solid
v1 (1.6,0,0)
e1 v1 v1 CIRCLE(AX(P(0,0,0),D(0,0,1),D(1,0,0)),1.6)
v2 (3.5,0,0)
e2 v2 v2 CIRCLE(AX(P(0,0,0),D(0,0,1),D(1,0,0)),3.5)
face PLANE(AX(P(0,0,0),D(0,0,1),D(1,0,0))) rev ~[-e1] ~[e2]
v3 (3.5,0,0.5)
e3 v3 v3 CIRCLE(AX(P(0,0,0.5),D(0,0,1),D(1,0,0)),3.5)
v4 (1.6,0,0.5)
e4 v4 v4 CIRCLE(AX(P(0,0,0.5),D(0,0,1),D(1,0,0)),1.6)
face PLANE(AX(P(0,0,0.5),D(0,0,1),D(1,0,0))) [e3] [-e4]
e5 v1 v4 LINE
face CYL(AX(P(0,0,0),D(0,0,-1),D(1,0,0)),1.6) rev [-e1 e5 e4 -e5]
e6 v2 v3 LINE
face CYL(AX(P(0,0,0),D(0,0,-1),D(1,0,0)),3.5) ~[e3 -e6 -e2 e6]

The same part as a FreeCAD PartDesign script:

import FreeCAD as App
import Part
import Sketcher
from FreeCAD import Vector
Q = App.Units.Quantity

doc = App.newDocument("Part")
params = doc.addObject("Spreadsheet::Sheet", "Params")
for row, (alias, value) in enumerate([
    ("sketch1_diameter", "7 mm"),
    ("sketch1_diameter2", "3.2 mm"),
    ("pad1_length", "0.5 mm"),
], start=1):
    params.set(f"A{row}", alias)
    params.set(f"B{row}", "=" + value)
    params.setAlias(f"B{row}", alias)

body = doc.addObject("PartDesign::Body", "Body")

sketch1 = body.newObject("Sketcher::SketchObject", "Sketch")
sketch1.AttachmentSupport = (doc.getObject("XY_Plane"), [""])
sketch1.MapMode = "FlatFace"
sketch1.addGeometry([
    Part.Circle(Vector(0, 0, 0), Vector(0, 0, 1), 3.5),
    Part.Circle(Vector(0, 0, 0), Vector(0, 0, 1), 1.6),
], False)
sketch1.addConstraint([
    Sketcher.Constraint("Coincident", 0, 3, -1, 1),
    Sketcher.Constraint("Coincident", 1, 3, -1, 1),
    Sketcher.Constraint("Diameter", 0, Q("7 mm")),
    Sketcher.Constraint("Diameter", 1, Q("3.2 mm")),
])
sketch1.setExpression("Constraints[2]", "Params.sketch1_diameter")
sketch1.setExpression("Constraints[3]", "Params.sketch1_diameter2")
pad1 = body.newObject("PartDesign::Pad", "Pad")
pad1.Profile = sketch1
pad1.setExpression("Length", "Params.pad1_length")

doc.recompute()
